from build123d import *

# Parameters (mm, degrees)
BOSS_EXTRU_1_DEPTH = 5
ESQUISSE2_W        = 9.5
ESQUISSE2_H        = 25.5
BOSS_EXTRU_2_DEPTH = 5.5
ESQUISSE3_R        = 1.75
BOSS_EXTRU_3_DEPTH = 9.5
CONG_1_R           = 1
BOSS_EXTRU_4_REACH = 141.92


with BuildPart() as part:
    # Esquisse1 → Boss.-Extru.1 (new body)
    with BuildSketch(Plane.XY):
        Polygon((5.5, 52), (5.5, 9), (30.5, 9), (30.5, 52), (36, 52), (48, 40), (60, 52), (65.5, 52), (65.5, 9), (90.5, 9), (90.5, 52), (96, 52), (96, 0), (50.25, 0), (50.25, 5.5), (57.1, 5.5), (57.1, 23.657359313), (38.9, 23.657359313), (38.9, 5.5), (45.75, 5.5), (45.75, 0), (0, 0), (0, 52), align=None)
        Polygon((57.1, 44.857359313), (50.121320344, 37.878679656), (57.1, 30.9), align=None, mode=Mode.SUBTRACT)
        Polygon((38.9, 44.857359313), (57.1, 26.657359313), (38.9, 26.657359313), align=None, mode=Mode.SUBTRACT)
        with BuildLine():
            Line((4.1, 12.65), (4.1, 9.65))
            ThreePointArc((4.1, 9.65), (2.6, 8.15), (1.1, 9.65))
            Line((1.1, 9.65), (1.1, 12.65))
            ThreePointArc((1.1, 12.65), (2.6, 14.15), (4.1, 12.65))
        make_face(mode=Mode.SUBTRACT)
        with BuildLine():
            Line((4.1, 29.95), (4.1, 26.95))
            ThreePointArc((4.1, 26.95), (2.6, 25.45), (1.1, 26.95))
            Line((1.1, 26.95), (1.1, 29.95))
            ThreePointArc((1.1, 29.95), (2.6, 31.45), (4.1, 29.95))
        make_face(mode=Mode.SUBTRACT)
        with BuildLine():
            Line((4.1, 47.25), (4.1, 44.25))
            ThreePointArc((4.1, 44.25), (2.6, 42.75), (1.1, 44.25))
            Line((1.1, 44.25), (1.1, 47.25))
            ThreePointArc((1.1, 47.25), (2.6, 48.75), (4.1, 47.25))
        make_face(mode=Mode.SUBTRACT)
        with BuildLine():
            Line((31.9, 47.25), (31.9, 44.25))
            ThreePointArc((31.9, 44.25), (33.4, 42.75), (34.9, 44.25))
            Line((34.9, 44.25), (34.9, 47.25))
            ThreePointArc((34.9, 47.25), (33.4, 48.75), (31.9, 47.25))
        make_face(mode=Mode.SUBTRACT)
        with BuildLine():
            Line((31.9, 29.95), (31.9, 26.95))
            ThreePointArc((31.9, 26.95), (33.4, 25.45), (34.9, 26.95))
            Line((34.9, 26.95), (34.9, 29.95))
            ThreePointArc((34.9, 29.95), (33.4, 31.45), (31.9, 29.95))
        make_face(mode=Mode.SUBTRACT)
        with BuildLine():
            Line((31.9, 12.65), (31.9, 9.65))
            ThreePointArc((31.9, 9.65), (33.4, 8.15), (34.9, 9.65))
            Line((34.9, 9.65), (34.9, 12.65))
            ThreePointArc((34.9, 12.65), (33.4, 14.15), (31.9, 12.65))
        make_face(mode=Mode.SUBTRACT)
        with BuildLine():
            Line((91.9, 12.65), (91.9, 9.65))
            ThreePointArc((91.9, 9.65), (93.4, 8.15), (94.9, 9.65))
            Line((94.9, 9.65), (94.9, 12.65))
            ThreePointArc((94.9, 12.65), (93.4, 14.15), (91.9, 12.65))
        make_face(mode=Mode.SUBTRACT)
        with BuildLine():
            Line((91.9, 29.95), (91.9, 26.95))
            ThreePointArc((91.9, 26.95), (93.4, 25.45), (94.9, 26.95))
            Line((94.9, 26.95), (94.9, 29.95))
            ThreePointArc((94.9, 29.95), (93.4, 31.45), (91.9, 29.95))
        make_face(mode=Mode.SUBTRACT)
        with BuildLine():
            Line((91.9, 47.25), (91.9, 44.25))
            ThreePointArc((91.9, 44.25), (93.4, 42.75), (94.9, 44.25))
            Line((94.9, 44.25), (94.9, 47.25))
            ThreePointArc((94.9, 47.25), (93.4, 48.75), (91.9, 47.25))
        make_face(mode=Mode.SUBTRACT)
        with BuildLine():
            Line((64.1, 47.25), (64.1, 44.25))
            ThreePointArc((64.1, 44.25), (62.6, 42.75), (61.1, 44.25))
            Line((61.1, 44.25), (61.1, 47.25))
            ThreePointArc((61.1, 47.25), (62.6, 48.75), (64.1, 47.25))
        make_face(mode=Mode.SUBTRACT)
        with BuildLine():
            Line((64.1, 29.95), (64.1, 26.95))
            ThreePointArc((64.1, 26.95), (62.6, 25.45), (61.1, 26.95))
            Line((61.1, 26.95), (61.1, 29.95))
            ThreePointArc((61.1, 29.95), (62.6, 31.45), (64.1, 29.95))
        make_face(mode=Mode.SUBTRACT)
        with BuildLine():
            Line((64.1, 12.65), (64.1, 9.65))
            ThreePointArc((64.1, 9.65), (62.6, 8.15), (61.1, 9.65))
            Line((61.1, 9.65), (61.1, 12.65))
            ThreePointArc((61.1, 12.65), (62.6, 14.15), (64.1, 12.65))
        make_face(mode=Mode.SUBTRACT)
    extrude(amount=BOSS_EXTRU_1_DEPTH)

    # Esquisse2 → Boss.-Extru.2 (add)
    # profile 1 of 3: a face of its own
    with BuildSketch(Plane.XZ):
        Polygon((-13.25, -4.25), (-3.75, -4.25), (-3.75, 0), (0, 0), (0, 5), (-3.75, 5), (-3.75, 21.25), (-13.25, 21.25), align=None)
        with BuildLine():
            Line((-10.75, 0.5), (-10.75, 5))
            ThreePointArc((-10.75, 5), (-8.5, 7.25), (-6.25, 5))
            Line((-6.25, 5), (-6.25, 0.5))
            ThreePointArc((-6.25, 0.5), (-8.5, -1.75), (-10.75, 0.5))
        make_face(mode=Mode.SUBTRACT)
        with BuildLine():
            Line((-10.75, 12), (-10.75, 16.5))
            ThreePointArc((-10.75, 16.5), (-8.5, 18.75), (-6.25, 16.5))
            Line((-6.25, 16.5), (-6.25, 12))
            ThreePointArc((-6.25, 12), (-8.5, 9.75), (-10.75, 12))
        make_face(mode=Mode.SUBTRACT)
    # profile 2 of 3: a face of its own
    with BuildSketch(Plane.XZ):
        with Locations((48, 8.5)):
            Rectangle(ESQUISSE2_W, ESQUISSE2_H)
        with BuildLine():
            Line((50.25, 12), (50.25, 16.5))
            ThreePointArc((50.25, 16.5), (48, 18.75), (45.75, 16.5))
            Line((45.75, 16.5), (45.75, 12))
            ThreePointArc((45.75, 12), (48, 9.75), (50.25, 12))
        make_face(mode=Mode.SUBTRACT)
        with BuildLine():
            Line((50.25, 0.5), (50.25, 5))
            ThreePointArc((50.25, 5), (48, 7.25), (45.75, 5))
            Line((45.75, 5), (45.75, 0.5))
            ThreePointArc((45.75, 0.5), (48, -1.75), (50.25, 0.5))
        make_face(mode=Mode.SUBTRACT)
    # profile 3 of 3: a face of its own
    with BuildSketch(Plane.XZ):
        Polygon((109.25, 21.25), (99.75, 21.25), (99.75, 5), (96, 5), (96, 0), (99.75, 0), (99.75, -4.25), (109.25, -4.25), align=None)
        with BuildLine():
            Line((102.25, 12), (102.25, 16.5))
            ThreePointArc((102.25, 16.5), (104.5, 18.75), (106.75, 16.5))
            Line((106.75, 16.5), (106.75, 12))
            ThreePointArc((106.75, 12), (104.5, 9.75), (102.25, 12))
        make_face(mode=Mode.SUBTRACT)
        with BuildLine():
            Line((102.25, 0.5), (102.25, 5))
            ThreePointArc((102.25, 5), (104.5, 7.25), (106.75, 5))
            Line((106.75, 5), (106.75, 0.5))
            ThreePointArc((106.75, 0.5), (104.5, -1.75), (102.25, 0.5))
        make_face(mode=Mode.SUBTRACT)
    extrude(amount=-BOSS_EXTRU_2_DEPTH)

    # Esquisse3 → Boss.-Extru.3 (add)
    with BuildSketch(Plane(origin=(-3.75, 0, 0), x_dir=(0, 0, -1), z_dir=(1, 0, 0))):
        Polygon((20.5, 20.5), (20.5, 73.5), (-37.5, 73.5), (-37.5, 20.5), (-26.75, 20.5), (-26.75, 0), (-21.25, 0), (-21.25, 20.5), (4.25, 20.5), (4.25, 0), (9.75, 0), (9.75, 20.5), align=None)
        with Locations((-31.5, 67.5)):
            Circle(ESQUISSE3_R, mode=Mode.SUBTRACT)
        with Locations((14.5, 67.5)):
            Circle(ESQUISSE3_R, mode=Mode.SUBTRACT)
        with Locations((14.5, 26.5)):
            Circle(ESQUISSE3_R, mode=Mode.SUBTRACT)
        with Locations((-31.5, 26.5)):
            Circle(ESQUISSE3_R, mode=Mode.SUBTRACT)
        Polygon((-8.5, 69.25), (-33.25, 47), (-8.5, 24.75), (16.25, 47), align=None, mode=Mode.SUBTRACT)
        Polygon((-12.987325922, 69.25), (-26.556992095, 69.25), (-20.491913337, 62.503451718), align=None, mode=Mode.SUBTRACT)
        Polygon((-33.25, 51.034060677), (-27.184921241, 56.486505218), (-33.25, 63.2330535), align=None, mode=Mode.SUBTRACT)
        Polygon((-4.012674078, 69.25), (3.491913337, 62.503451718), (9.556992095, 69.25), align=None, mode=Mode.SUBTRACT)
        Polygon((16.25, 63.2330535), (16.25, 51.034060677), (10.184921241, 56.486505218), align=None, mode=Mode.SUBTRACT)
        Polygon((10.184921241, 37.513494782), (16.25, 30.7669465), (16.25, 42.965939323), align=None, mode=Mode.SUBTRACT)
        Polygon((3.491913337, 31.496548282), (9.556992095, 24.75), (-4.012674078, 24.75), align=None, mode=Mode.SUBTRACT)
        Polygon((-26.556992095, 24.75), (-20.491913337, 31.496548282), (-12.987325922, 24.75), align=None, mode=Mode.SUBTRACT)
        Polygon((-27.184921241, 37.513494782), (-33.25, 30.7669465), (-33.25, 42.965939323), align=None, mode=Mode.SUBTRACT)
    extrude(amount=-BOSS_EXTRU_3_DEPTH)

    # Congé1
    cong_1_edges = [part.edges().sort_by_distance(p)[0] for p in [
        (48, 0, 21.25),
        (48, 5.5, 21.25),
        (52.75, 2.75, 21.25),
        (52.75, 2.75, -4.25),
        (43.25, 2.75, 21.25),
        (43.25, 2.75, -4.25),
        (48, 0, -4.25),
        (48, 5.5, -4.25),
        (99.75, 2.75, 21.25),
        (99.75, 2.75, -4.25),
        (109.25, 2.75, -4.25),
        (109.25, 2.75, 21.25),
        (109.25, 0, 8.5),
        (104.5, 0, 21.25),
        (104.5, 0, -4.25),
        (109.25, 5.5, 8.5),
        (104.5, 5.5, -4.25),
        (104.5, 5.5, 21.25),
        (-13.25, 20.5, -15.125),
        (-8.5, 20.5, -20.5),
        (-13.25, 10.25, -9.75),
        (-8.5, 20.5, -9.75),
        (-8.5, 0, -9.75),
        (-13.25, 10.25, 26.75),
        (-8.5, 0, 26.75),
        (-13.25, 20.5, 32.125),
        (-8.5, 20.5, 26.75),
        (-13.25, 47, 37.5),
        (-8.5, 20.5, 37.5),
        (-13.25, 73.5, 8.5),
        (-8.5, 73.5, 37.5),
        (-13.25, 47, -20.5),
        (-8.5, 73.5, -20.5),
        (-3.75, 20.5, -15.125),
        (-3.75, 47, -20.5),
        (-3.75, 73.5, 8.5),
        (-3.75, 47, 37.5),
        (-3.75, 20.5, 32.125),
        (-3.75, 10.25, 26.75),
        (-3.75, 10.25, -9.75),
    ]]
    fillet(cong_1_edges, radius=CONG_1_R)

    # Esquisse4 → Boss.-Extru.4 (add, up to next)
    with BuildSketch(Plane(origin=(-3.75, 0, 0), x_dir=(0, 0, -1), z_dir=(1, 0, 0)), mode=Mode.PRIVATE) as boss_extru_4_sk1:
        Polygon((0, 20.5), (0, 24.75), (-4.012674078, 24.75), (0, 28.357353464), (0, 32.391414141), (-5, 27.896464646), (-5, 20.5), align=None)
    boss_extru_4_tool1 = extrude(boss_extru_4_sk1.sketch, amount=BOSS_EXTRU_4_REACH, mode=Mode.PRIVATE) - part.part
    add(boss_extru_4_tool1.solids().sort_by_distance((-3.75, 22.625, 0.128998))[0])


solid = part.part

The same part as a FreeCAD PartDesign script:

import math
import FreeCAD as App
import Part
import Sketcher
from FreeCAD import Vector


def edges_at(feature, points):
    """Names of the edges that pass closest to the given points."""
    edges = feature.Shape.Edges
    near = lambda p: min(range(len(edges)), key=lambda i: edges[i].distToShape(Part.Vertex(*p))[0])
    return sorted({f"Edge{near(p) + 1}" for p in points})


def add_polygon(sketch, points):
    """Adds a closed chain of lines whose ends are joined by coincident constraints."""
    first, n = sketch.GeometryCount, len(points)
    for a, b in zip(points, points[1:] + points[:1]):
        sketch.addGeometry(Part.LineSegment(App.Vector(*a, 0), App.Vector(*b, 0)), False)
    for i in range(n):
        sketch.addConstraint(Sketcher.Constraint("Coincident", first + i, 2, first + (i + 1) % n, 1))

doc = App.newDocument("Part")
params = doc.addObject("Spreadsheet::Sheet", "Params")
for row, (alias, value) in enumerate([
    ("sketch1_radius", "1.5 mm"),
    ("sketch1_width", "25 mm"),
    ("sketch1_height", "43 mm"),
    ("sketch1_height2", "52 mm"),
    ("sketch1_height3", "3 mm"),
    ("pad1_length", "5 mm"),
    ("sketch2_height", "5 mm"),
    ("sketch2_radius", "2.25 mm"),
    ("sketch2_width", "9.5 mm"),
    ("sketch2_height2", "25.5 mm"),
    ("sketch2_height3", "4.5 mm"),
    ("pad2_length", "5.5 mm"),
    ("sketch3_diameter", "3.5 mm"),
    ("sketch3_width", "53 mm"),
    ("sketch3_height", "58 mm"),
    ("sketch3_width2", "20.5 mm"),
    ("sketch3_height2", "5.5 mm"),
    ("pad3_length", "9.5 mm"),
    ("fillet_radius", "1 mm"),
    ("sketch4_height", "5 mm"),
    ("sketch4_width", "4.25 mm"),
], start=1):
    params.set(f"A{row}", alias)
    params.set(f"B{row}", "=" + value)
    params.setAlias(f"B{row}", alias)

body = doc.addObject("PartDesign::Body", "Body")

sketch1 = body.newObject("Sketcher::SketchObject", "Sketch")
sketch1.AttachmentSupport = (doc.getObject("XY_Plane"), [""])
sketch1.MapMode = "FlatFace"
add_polygon(sketch1, [(5.5, 9), (5.5, 52), (0, 52), (0, 0), (45.75, 0), (45.75, 5.5), (38.9, 5.5), (38.9, 23.657359), (57.1, 23.657359), (57.1, 5.5), (50.25, 5.5), (50.25, 0), (96, 0), (96, 52), (90.5, 52), (90.5, 9), (65.5, 9), (65.5, 52), (60, 52), (48, 40), (36, 52), (30.5, 52), (30.5, 9)])
sketch1.addGeometry(Part.ArcOfCircle(Part.Circle(Vector(93.4, 12.65, 0), Vector(0, 0, 1), 1.5), math.radians(0), math.radians(180)), False)
sketch1.addGeometry(Part.LineSegment(Vector(94.9, 12.65, 0), Vector(94.9, 9.65, 0)), False)
sketch1.addGeometry(Part.ArcOfCircle(Part.Circle(Vector(93.4, 9.65, 0), Vector(0, 0, 1), 1.5), math.radians(180), math.radians(360)), False)
sketch1.addGeometry(Part.LineSegment(Vector(91.9, 9.65, 0), Vector(91.9, 12.65, 0)), False)
sketch1.addGeometry(Part.LineSegment(Vector(64.1, 12.65, 0), Vector(64.1, 9.65, 0)), False)
sketch1.addGeometry(Part.ArcOfCircle(Part.Circle(Vector(62.6, 9.65, 0), Vector(0, 0, 1), 1.5), math.radians(180), math.radians(360)), False)
sketch1.addGeometry(Part.LineSegment(Vector(61.1, 9.65, 0), Vector(61.1, 12.65, 0)), False)
sketch1.addGeometry(Part.ArcOfCircle(Part.Circle(Vector(62.6, 12.65, 0), Vector(0, 0, 1), 1.5), math.radians(0), math.radians(180)), False)
sketch1.addGeometry(Part.ArcOfCircle(Part.Circle(Vector(33.4, 12.65, 0), Vector(0, 0, 1), 1.5), math.radians(0), math.radians(180)), False)
sketch1.addGeometry(Part.LineSegment(Vector(34.9, 12.65, 0), Vector(34.9, 9.65, 0)), False)
sketch1.addGeometry(Part.ArcOfCircle(Part.Circle(Vector(33.4, 9.65, 0), Vector(0, 0, 1), 1.5), math.radians(180), math.radians(360)), False)
sketch1.addGeometry(Part.LineSegment(Vector(31.9, 9.65, 0), Vector(31.9, 12.65, 0)), False)
sketch1.addGeometry(Part.LineSegment(Vector(4.1, 12.65, 0), Vector(4.1, 9.65, 0)), False)
sketch1.addGeometry(Part.ArcOfCircle(Part.Circle(Vector(2.6, 9.65, 0), Vector(0, 0, 1), 1.5), math.radians(180), math.radians(360)), False)
sketch1.addGeometry(Part.LineSegment(Vector(1.1, 9.65, 0), Vector(1.1, 12.65, 0)), False)
sketch1.addGeometry(Part.ArcOfCircle(Part.Circle(Vector(2.6, 12.65, 0), Vector(0, 0, 1), 1.5), math.radians(0), math.radians(180)), False)
sketch1.addGeometry(Part.ArcOfCircle(Part.Circle(Vector(93.4, 29.95, 0), Vector(0, 0, 1), 1.5), math.radians(0), math.radians(180)), False)
sketch1.addGeometry(Part.LineSegment(Vector(94.9, 29.95, 0), Vector(94.9, 26.95, 0)), False)
sketch1.addGeometry(Part.ArcOfCircle(Part.Circle(Vector(93.4, 26.95, 0), Vector(0, 0, 1), 1.5), math.radians(180), math.radians(360)), False)
sketch1.addGeometry(Part.LineSegment(Vector(91.9, 26.95, 0), Vector(91.9, 29.95, 0)), False)
sketch1.addGeometry(Part.LineSegment(Vector(64.1, 29.95, 0), Vector(64.1, 26.95, 0)), False)
sketch1.addGeometry(Part.ArcOfCircle(Part.Circle(Vector(62.6, 26.95, 0), Vector(0, 0, 1), 1.5), math.radians(180), math.radians(360)), False)
sketch1.addGeometry(Part.LineSegment(Vector(61.1, 26.95, 0), Vector(61.1, 29.95, 0)), False)
sketch1.addGeometry(Part.ArcOfCircle(Part.Circle(Vector(62.6, 29.95, 0), Vector(0, 0, 1), 1.5), math.radians(0), math.radians(180)), False)
add_polygon(sketch1, [(38.9, 44.857359), (57.1, 26.657359), (38.9, 26.657359)])
add_polygon(sketch1, [(57.1, 44.857359), (57.1, 30.9), (50.12132, 37.87868)])
sketch1.addGeometry(Part.ArcOfCircle(Part.Circle(Vector(93.4, 47.25, 0), Vector(0, 0, 1), 1.5), math.radians(0), math.radians(180)), False)
sketch1.addGeometry(Part.LineSegment(Vector(94.9, 47.25, 0), Vector(94.9, 44.25, 0)), False)
sketch1.addGeometry(Part.ArcOfCircle(Part.Circle(Vector(93.4, 44.25, 0), Vector(0, 0, 1), 1.5), math.radians(180), math.radians(360)), False)
sketch1.addGeometry(Part.LineSegment(Vector(91.9, 44.25, 0), Vector(91.9, 47.25, 0)), False)
sketch1.addGeometry(Part.LineSegment(Vector(64.1, 47.25, 0), Vector(64.1, 44.25, 0)), False)
sketch1.addGeometry(Part.ArcOfCircle(Part.Circle(Vector(62.6, 44.25, 0), Vector(0, 0, 1), 1.5), math.radians(180), math.radians(360)), False)
sketch1.addGeometry(Part.LineSegment(Vector(61.1, 44.25, 0), Vector(61.1, 47.25, 0)), False)
sketch1.addGeometry(Part.ArcOfCircle(Part.Circle(Vector(62.6, 47.25, 0), Vector(0, 0, 1), 1.5), math.radians(0), math.radians(180)), False)
sketch1.addGeometry(Part.ArcOfCircle(Part.Circle(Vector(33.4, 29.95, 0), Vector(0, 0, 1), 1.5), math.radians(0), math.radians(180)), False)
sketch1.addGeometry(Part.LineSegment(Vector(34.9, 29.95, 0), Vector(34.9, 26.95, 0)), False)
sketch1.addGeometry(Part.ArcOfCircle(Part.Circle(Vector(33.4, 26.95, 0), Vector(0, 0, 1), 1.5), math.radians(180), math.radians(360)), False)
sketch1.addGeometry(Part.LineSegment(Vector(31.9, 26.95, 0), Vector(31.9, 29.95, 0)), False)
sketch1.addGeometry(Part.LineSegment(Vector(4.1, 29.95, 0), Vector(4.1, 26.95, 0)), False)
sketch1.addGeometry(Part.ArcOfCircle(Part.Circle(Vector(2.6, 26.95, 0), Vector(0, 0, 1), 1.5), math.radians(180), math.radians(360)), False)
sketch1.addGeometry(Part.LineSegment(Vector(1.1, 26.95, 0), Vector(1.1, 29.95, 0)), False)
sketch1.addGeometry(Part.ArcOfCircle(Part.Circle(Vector(2.6, 29.95, 0), Vector(0, 0, 1), 1.5), math.radians(0), math.radians(180)), False)
sketch1.addGeometry(Part.ArcOfCircle(Part.Circle(Vector(33.4, 47.25, 0), Vector(0, 0, 1), 1.5), math.radians(0), math.radians(180)), False)
sketch1.addGeometry(Part.LineSegment(Vector(34.9, 47.25, 0), Vector(34.9, 44.25, 0)), False)
sketch1.addGeometry(Part.ArcOfCircle(Part.Circle(Vector(33.4, 44.25, 0), Vector(0, 0, 1), 1.5), math.radians(180), math.radians(360)), False)
sketch1.addGeometry(Part.LineSegment(Vector(31.9, 44.25, 0), Vector(31.9, 47.25, 0)), False)
sketch1.addGeometry(Part.LineSegment(Vector(4.1, 47.25, 0), Vector(4.1, 44.25, 0)), False)
sketch1.addGeometry(Part.ArcOfCircle(Part.Circle(Vector(2.6, 44.25, 0), Vector(0, 0, 1), 1.5), math.radians(180), math.radians(360)), False)
sketch1.addGeometry(Part.LineSegment(Vector(1.1, 44.25, 0), Vector(1.1, 47.25, 0)), False)
sketch1.addGeometry(Part.ArcOfCircle(Part.Circle(Vector(2.6, 47.25, 0), Vector(0, 0, 1), 1.5), math.radians(0), math.radians(180)), False)
sketch1.addConstraint([
    Sketcher.Constraint("Tangent", 23, 1, 24, 1),
    Sketcher.Constraint("Tangent", 24, 2, 25, 2),
    Sketcher.Constraint("Tangent", 25, 1, 26, 1),
    Sketcher.Constraint("Tangent", 26, 2, 23, 2),
    Sketcher.Constraint("Tangent", 27, 2, 28, 2),
    Sketcher.Constraint("Tangent", 28, 1, 29, 1),
    Sketcher.Constraint("Tangent", 29, 2, 30, 2),
    Sketcher.Constraint("Tangent", 30, 1, 27, 1),
    Sketcher.Constraint("Tangent", 31, 1, 32, 1),
    Sketcher.Constraint("Tangent", 32, 2, 33, 2),
    Sketcher.Constraint("Tangent", 33, 1, 34, 1),
    Sketcher.Constraint("Tangent", 34, 2, 31, 2),
    Sketcher.Constraint("Tangent", 35, 2, 36, 2),
    Sketcher.Constraint("Tangent", 36, 1, 37, 1),
    Sketcher.Constraint("Tangent", 37, 2, 38, 2),
    Sketcher.Constraint("Tangent", 38, 1, 35, 1),
    Sketcher.Constraint("Tangent", 39, 1, 40, 1),
    Sketcher.Constraint("Tangent", 40, 2, 41, 2),
    Sketcher.Constraint("Tangent", 41, 1, 42, 1),
    Sketcher.Constraint("Tangent", 42, 2, 39, 2),
    Sketcher.Constraint("Tangent", 43, 2, 44, 2),
    Sketcher.Constraint("Tangent", 44, 1, 45, 1),
    Sketcher.Constraint("Tangent", 45, 2, 46, 2),
    Sketcher.Constraint("Tangent", 46, 1, 43, 1),
    Sketcher.Constraint("Tangent", 53, 1, 54, 1),
    Sketcher.Constraint("Tangent", 54, 2, 55, 2),
    Sketcher.Constraint("Tangent", 55, 1, 56, 1),
    Sketcher.Constraint("Tangent", 56, 2, 53, 2),
    Sketcher.Constraint("Tangent", 57, 2, 58, 2),
    Sketcher.Constraint("Tangent", 58, 1, 59, 1),
    Sketcher.Constraint("Tangent", 59, 2, 60, 2),
    Sketcher.Constraint("Tangent", 60, 1, 57, 1),
    Sketcher.Constraint("Tangent", 61, 1, 62, 1),
    Sketcher.Constraint("Tangent", 62, 2, 63, 2),
    Sketcher.Constraint("Tangent", 63, 1, 64, 1),
    Sketcher.Constraint("Tangent", 64, 2, 61, 2),
    Sketcher.Constraint("Tangent", 65, 2, 66, 2),
    Sketcher.Constraint("Tangent", 66, 1, 67, 1),
    Sketcher.Constraint("Tangent", 67, 2, 68, 2),
    Sketcher.Constraint("Tangent", 68, 1, 65, 1),
    Sketcher.Constraint("Tangent", 69, 1, 70, 1),
    Sketcher.Constraint("Tangent", 70, 2, 71, 2),
    Sketcher.Constraint("Tangent", 71, 1, 72, 1),
    Sketcher.Constraint("Tangent", 72, 2, 69, 2),
    Sketcher.Constraint("Tangent", 73, 2, 74, 2),
    Sketcher.Constraint("Tangent", 74, 1, 75, 1),
    Sketcher.Constraint("Tangent", 75, 2, 76, 2),
    Sketcher.Constraint("Tangent", 76, 1, 73, 1),
    Sketcher.Constraint("Vertical", 0),
    Sketcher.Constraint("Horizontal", 1),
    Sketcher.Constraint("Vertical", 2),
    Sketcher.Constraint("Horizontal", 3),
    Sketcher.Constraint("Vertical", 4),
    Sketcher.Constraint("Horizontal", 5),
    Sketcher.Constraint("Vertical", 6),
    Sketcher.Constraint("Horizontal", 7),
    Sketcher.Constraint("Vertical", 8),
    Sketcher.Constraint("Horizontal", 9),
    Sketcher.Constraint("Vertical", 10),
    Sketcher.Constraint("Horizontal", 11),
    Sketcher.Constraint("Vertical", 12),
    Sketcher.Constraint("Horizontal", 13),
    Sketcher.Constraint("Vertical", 14),
    Sketcher.Constraint("Horizontal", 15),
    Sketcher.Constraint("Vertical", 16),
    Sketcher.Constraint("Horizontal", 17),
    Sketcher.Constraint("Horizontal", 20),
    Sketcher.Constraint("Vertical", 21),
    Sketcher.Constraint("Horizontal", 22),
    Sketcher.Constraint("Vertical", 24),
    Sketcher.Constraint("Vertical", 26),
    Sketcher.Constraint("Vertical", 27),
    Sketcher.Constraint("Vertical", 29),
    Sketcher.Constraint("Vertical", 32),
    Sketcher.Constraint("Vertical", 34),
    Sketcher.Constraint("Vertical", 35),
    Sketcher.Constraint("Vertical", 37),
    Sketcher.Constraint("Vertical", 40),
    Sketcher.Constraint("Vertical", 42),
    Sketcher.Constraint("Vertical", 43),
    Sketcher.Constraint("Vertical", 45),
    Sketcher.Constraint("Horizontal", 48),
    Sketcher.Constraint("Vertical", 49),
    Sketcher.Constraint("Vertical", 50),
    Sketcher.Constraint("Vertical", 54),
    Sketcher.Constraint("Vertical", 56),
    Sketcher.Constraint("Vertical", 57),
    Sketcher.Constraint("Vertical", 59),
    Sketcher.Constraint("Vertical", 62),
    Sketcher.Constraint("Vertical", 64),
    Sketcher.Constraint("Vertical", 65),
    Sketcher.Constraint("Vertical", 67),
    Sketcher.Constraint("Vertical", 70),
    Sketcher.Constraint("Vertical", 72),
    Sketcher.Constraint("Vertical", 73),
    Sketcher.Constraint("Vertical", 75),
    Sketcher.Constraint("Coincident", 2, 2, -1, 1),
    Sketcher.Constraint("Equal", 25, 28),
    Sketcher.Constraint("Equal", 30, 31),
    Sketcher.Constraint("Equal", 33, 36),
    Sketcher.Constraint("Equal", 38, 39),
    Sketcher.Constraint("Equal", 41, 44),
    Sketcher.Constraint("Equal", 46, 53),
    Sketcher.Constraint("Equal", 55, 58),
    Sketcher.Constraint("Equal", 60, 61),
    Sketcher.Constraint("Equal", 63, 66),
    Sketcher.Constraint("Equal", 68, 69),
    Sketcher.Constraint("Equal", 71, 74),
    Sketcher.Constraint("PointOnObject", 10, 2, -1),
    Sketcher.Constraint("Perpendicular", 18, 19),
    Sketcher.Constraint("Parallel", 19, 47),
    Sketcher.Constraint("Parallel", 47, 51),
    Sketcher.Constraint("Perpendicular", 51, 52),
    Sketcher.Constraint("Horizontal", 25, 3, 28, 3),
    Sketcher.Constraint("Horizontal", 23, 3, 30, 3),
    Sketcher.Constraint("Horizontal", 30, 3, 31, 3),
    Sketcher.Constraint("Horizontal", 28, 3, 33, 3),
    Sketcher.Constraint("Horizontal", 33, 3, 36, 3),
    Sketcher.Constraint("Horizontal", 31, 3, 38, 3),
    Sketcher.Constraint("Horizontal", 41, 3, 44, 3),
    Sketcher.Constraint("Horizontal", 39, 3, 46, 3),
    Sketcher.Constraint("Horizontal", 55, 3, 58, 3),
    Sketcher.Constraint("Horizontal", 53, 3, 60, 3),
    Sketcher.Constraint("Horizontal", 46, 3, 61, 3),
    Sketcher.Constraint("Horizontal", 44, 3, 63, 3),
    Sketcher.Constraint("Horizontal", 63, 3, 66, 3),
    Sketcher.Constraint("Horizontal", 61, 3, 68, 3),
    Sketcher.Constraint("Horizontal", 60, 3, 69, 3),
    Sketcher.Constraint("Horizontal", 58, 3, 71, 3),
    Sketcher.Constraint("Horizontal", 71, 3, 74, 3),
    Sketcher.Constraint("Horizontal", 69, 3, 76, 3),
    Sketcher.Constraint("Horizontal", 5, 2, 8, 2),
    Sketcher.Constraint("Horizontal", 1, 2, 12, 2),
    Sketcher.Constraint("Horizontal", 13, 2, 16, 2),
    Sketcher.Constraint("Horizontal", 17, 2, 19, 2),
    Sketcher.Constraint("Horizontal", 15, 2, 21, 2),
    Sketcher.Constraint("Horizontal", 49, 2, 52, 2),
    Sketcher.Constraint("Vertical", 25, 3, 39, 3),
    Sketcher.Constraint("Vertical", 30, 3, 44, 3),
    Sketcher.Constraint("Vertical", 41, 3, 53, 3),
    Sketcher.Constraint("Vertical", 46, 3, 58, 3),
    Sketcher.Constraint("Vertical", 33, 3, 61, 3),
    Sketcher.Constraint("Vertical", 38, 3, 66, 3),
    Sketcher.Constraint("Vertical", 63, 3, 69, 3),
    Sketcher.Constraint("Vertical", 68, 3, 74, 3),
    Sketcher.Constraint("Vertical", 8, 2, 47, 2),
    Sketcher.Constraint("Vertical", 6, 2, 48, 2),
    Sketcher.Constraint("Vertical", 47, 2, 50, 2),
    Sketcher.Constraint("Equal", 5, 9),
    Sketcher.Constraint("Equal", 3, 11),
    Sketcher.Constraint("Equal", 1, 13),
    Sketcher.Constraint("Equal", 13, 17),
    Sketcher.Constraint("Equal", 17, 20),
    Sketcher.Constraint("Equal", 15, 22),
    Sketcher.Constraint("Equal", 20, 4),
    Sketcher.Constraint("Equal", 37, 40),
    Sketcher.Constraint("Equal", 48, 49),
    Sketcher.Constraint("Equal", 45, 54),
    Sketcher.Constraint("Radius", 23, 1.5),
    Sketcher.Constraint("DistanceX", 15, 2, 15, 1, 25.0),
    Sketcher.Constraint("DistanceY", 0, 1, 0, 2, 43.0),
    Sketcher.Constraint("DistanceY", 2, 2, 2, 1, 52.0),
    Sketcher.Constraint("DistanceY", 24, 2, 24, 1, 3.0),
    Sketcher.Constraint("DistanceX", 1, 2, 1, 1, 5.5),
    Sketcher.Constraint("DistanceX", 7, 1, 7, 2, 18.2),
    Sketcher.Constraint("DistanceX", -1, 1, 11, 2, 96.0),
    Sketcher.Constraint("DistanceX", 3, 1, 3, 2, 45.75),
    Sketcher.Constraint("DistanceX", -1, 1, 23, 3, 93.4),
    Sketcher.Constraint("DistanceX", -1, 1, 28, 3, 62.6),
    Sketcher.Constraint("DistanceX", -1, 1, 31, 3, 33.4),
    Sketcher.Constraint("DistanceX", -1, 1, 36, 3, 2.6),
    Sketcher.Constraint("DistanceY", -1, 1, 50, 2, 30.9),
    Sketcher.Constraint("DistanceY", -1, 1, 23, 3, 12.65),
    Sketcher.Constraint("DistanceY", -1, 1, 39, 3, 29.95),
    Sketcher.Constraint("DistanceY", -1, 1, 53, 3, 47.25),
    Sketcher.Constraint("DistanceY", 6, 1, 6, 2, 18.157359),
    Sketcher.Constraint("DistanceY", 50, 2, 50, 1, 13.957359),
])
sketch1.setExpression("Constraints[187]", "Params.sketch1_radius")
sketch1.setExpression("Constraints[188]", "Params.sketch1_width")
sketch1.setExpression("Constraints[189]", "Params.sketch1_height")
sketch1.setExpression("Constraints[190]", "Params.sketch1_height2")
sketch1.setExpression("Constraints[191]", "Params.sketch1_height3")
pad1 = body.newObject("PartDesign::Pad", "Pad")
pad1.Profile = sketch1
pad1.setExpression("Length", "Params.pad1_length")

sketch2 = body.newObject("Sketcher::SketchObject", "Sketch001")
sketch2.AttachmentSupport = (doc.getObject("XZ_Plane"), [""])
sketch2.MapMode = "FlatFace"
add_polygon(sketch2, [(-13.25, -4.25), (-3.75, -4.25), (-3.75, 0), (0, 0), (0, 5), (-3.75, 5), (-3.75, 21.25), (-13.25, 21.25)])
sketch2.addGeometry(Part.ArcOfCircle(Part.Circle(Vector(-8.5, 0.5, 0), Vector(0, 0, 1), 2.25), math.radians(180), math.radians(360)), False)
sketch2.addGeometry(Part.LineSegment(Vector(-10.75, 0.5, 0), Vector(-10.75, 5, 0)), False)
sketch2.addGeometry(Part.ArcOfCircle(Part.Circle(Vector(-8.5, 5, 0), Vector(0, 0, 1), 2.25), math.radians(0), math.radians(180)), False)
sketch2.addGeometry(Part.LineSegment(Vector(-6.25, 5, 0), Vector(-6.25, 0.5, 0)), False)
sketch2.addGeometry(Part.ArcOfCircle(Part.Circle(Vector(-8.5, 12, 0), Vector(0, 0, 1), 2.25), math.radians(180), math.radians(360)), False)
sketch2.addGeometry(Part.LineSegment(Vector(-10.75, 12, 0), Vector(-10.75, 16.5, 0)), False)
sketch2.addGeometry(Part.ArcOfCircle(Part.Circle(Vector(-8.5, 16.5, 0), Vector(0, 0, 1), 2.25), math.radians(0), math.radians(180)), False)
sketch2.addGeometry(Part.LineSegment(Vector(-6.25, 16.5, 0), Vector(-6.25, 12, 0)), False)
add_polygon(sketch2, [(43.25, 21.25), (43.25, -4.25), (52.75, -4.25), (52.75, 21.25)])
sketch2.addGeometry(Part.LineSegment(Vector(50.25, 5, 0), Vector(50.25, 0.5, 0)), False)
sketch2.addGeometry(Part.ArcOfCircle(Part.Circle(Vector(48, 0.5, 0), Vector(0, 0, 1), 2.25), math.radians(180), math.radians(360)), False)
sketch2.addGeometry(Part.LineSegment(Vector(45.75, 0.5, 0), Vector(45.75, 5, 0)), False)
sketch2.addGeometry(Part.ArcOfCircle(Part.Circle(Vector(48, 5, 0), Vector(0, 0, 1), 2.25), math.radians(0), math.radians(180)), False)
sketch2.addGeometry(Part.LineSegment(Vector(50.25, 16.5, 0), Vector(50.25, 12, 0)), False)
sketch2.addGeometry(Part.ArcOfCircle(Part.Circle(Vector(48, 12, 0), Vector(0, 0, 1), 2.25), math.radians(180), math.radians(360)), False)
sketch2.addGeometry(Part.LineSegment(Vector(45.75, 12, 0), Vector(45.75, 16.5, 0)), False)
sketch2.addGeometry(Part.ArcOfCircle(Part.Circle(Vector(48, 16.5, 0), Vector(0, 0, 1), 2.25), math.radians(0), math.radians(180)), False)
add_polygon(sketch2, [(109.25, 21.25), (99.75, 21.25), (99.75, 5), (96, 5), (96, 0), (99.75, 0), (99.75, -4.25), (109.25, -4.25)])
sketch2.addGeometry(Part.ArcOfCircle(Part.Circle(Vector(104.5, 0.5, 0), Vector(0, 0, 1), 2.25), math.radians(180), math.radians(360)), False)
sketch2.addGeometry(Part.LineSegment(Vector(102.25, 0.5, 0), Vector(102.25, 5, 0)), False)
sketch2.addGeometry(Part.ArcOfCircle(Part.Circle(Vector(104.5, 5, 0), Vector(0, 0, 1), 2.25), math.radians(0), math.radians(180)), False)
sketch2.addGeometry(Part.LineSegment(Vector(106.75, 5, 0), Vector(106.75, 0.5, 0)), False)
sketch2.addGeometry(Part.ArcOfCircle(Part.Circle(Vector(104.5, 12, 0), Vector(0, 0, 1), 2.25), math.radians(180), math.radians(360)), False)
sketch2.addGeometry(Part.LineSegment(Vector(102.25, 12, 0), Vector(102.25, 16.5, 0)), False)
sketch2.addGeometry(Part.ArcOfCircle(Part.Circle(Vector(104.5, 16.5, 0), Vector(0, 0, 1), 2.25), math.radians(0), math.radians(180)), False)
sketch2.addGeometry(Part.LineSegment(Vector(106.75, 16.5, 0), Vector(106.75, 12, 0)), False)
sketch2.addConstraint([
    Sketcher.Constraint("Tangent", 8, 1, 9, 1),
    Sketcher.Constraint("Tangent", 9, 2, 10, 2),
    Sketcher.Constraint("Tangent", 10, 1, 11, 1),
    Sketcher.Constraint("Tangent", 11, 2, 8, 2),
    Sketcher.Constraint("Tangent", 12, 1, 13, 1),
    Sketcher.Constraint("Tangent", 13, 2, 14, 2),
    Sketcher.Constraint("Tangent", 14, 1, 15, 1),
    Sketcher.Constraint("Tangent", 15, 2, 12, 2),
    Sketcher.Constraint("Tangent", 20, 2, 21, 2),
    Sketcher.Constraint("Tangent", 21, 1, 22, 1),
    Sketcher.Constraint("Tangent", 22, 2, 23, 2),
    Sketcher.Constraint("Tangent", 23, 1, 20, 1),
    Sketcher.Constraint("Tangent", 24, 2, 25, 2),
    Sketcher.Constraint("Tangent", 25, 1, 26, 1),
    Sketcher.Constraint("Tangent", 26, 2, 27, 2),
    Sketcher.Constraint("Tangent", 27, 1, 24, 1),
    Sketcher.Constraint("Tangent", 36, 1, 37, 1),
    Sketcher.Constraint("Tangent", 37, 2, 38, 2),
    Sketcher.Constraint("Tangent", 38, 1, 39, 1),
    Sketcher.Constraint("Tangent", 39, 2, 36, 2),
    Sketcher.Constraint("Tangent", 40, 1, 41, 1),
    Sketcher.Constraint("Tangent", 41, 2, 42, 2),
    Sketcher.Constraint("Tangent", 42, 1, 43, 1),
    Sketcher.Constraint("Tangent", 43, 2, 40, 2),
    Sketcher.Constraint("Horizontal", 0),
    Sketcher.Constraint("Vertical", 1),
    Sketcher.Constraint("Horizontal", 2),
    Sketcher.Constraint("Vertical", 3),
    Sketcher.Constraint("Horizontal", 4),
    Sketcher.Constraint("Vertical", 5),
    Sketcher.Constraint("Horizontal", 6),
    Sketcher.Constraint("Vertical", 7),
    Sketcher.Constraint("Vertical", 9),
    Sketcher.Constraint("Vertical", 11),
    Sketcher.Constraint("Vertical", 13),
    Sketcher.Constraint("Vertical", 15),
    Sketcher.Constraint("Vertical", 16),
    Sketcher.Constraint("Horizontal", 17),
    Sketcher.Constraint("Vertical", 18),
    Sketcher.Constraint("Horizontal", 19),
    Sketcher.Constraint("Vertical", 20),
    Sketcher.Constraint("Vertical", 22),
    Sketcher.Constraint("Vertical", 24),
    Sketcher.Constraint("Vertical", 26),
    Sketcher.Constraint("Horizontal", 28),
    Sketcher.Constraint("Vertical", 29),
    Sketcher.Constraint("Horizontal", 30),
    Sketcher.Constraint("Vertical", 31),
    Sketcher.Constraint("Horizontal", 32),
    Sketcher.Constraint("Vertical", 33),
    Sketcher.Constraint("Horizontal", 34),
    Sketcher.Constraint("Vertical", 35),
    Sketcher.Constraint("Vertical", 37),
    Sketcher.Constraint("Vertical", 39),
    Sketcher.Constraint("Vertical", 41),
    Sketcher.Constraint("Vertical", 43),
    Sketcher.Constraint("Coincident", 2, 2, -1, 1),
    Sketcher.Constraint("Equal", 10, 12),
    Sketcher.Constraint("Equal", 14, 21),
    Sketcher.Constraint("Equal", 23, 25),
    Sketcher.Constraint("Equal", 27, 36),
    Sketcher.Constraint("Equal", 38, 40),
    Sketcher.Constraint("PointOnObject", 31, 2, -1),
    Sketcher.Constraint("Horizontal", 8, 3, 21, 3),
    Sketcher.Constraint("Horizontal", 10, 3, 23, 3),
    Sketcher.Constraint("Horizontal", 12, 3, 25, 3),
    Sketcher.Constraint("Horizontal", 14, 3, 27, 3),
    Sketcher.Constraint("Horizontal", 21, 3, 36, 3),
    Sketcher.Constraint("Horizontal", 23, 3, 38, 3),
    Sketcher.Constraint("Horizontal", 25, 3, 40, 3),
    Sketcher.Constraint("Horizontal", 27, 3, 42, 3),
    Sketcher.Constraint("Horizontal", 38, 3, 3, 2),
    Sketcher.Constraint("Horizontal", 7, 2, 16, 2),
    Sketcher.Constraint("Horizontal", 6, 2, 18, 2),
    Sketcher.Constraint("Horizontal", 19, 2, 28, 2),
    Sketcher.Constraint("Horizontal", 23, 1, 29, 2),
    Sketcher.Constraint("Horizontal", 17, 2, 33, 2),
    Sketcher.Constraint("Vertical", 10, 3, 12, 3),
    Sketcher.Constraint("Vertical", 23, 3, 25, 3),
    Sketcher.Constraint("Vertical", 38, 3, 40, 3),
    Sketcher.Constraint("Vertical", 1, 2, 4, 2),
    Sketcher.Constraint("Vertical", 29, 2, 32, 2),
    Sketcher.Constraint("Equal", 6, 17),
    Sketcher.Constraint("Equal", 19, 28),
    Sketcher.Constraint("Equal", 4, 30),
    Sketcher.Constraint("Equal", 11, 13),
    Sketcher.Constraint("DistanceY", 3, 1, 3, 2, 5.0),
    Sketcher.Constraint("Radius", 8, 2.25),
    Sketcher.Constraint("DistanceX", 0, 1, 0, 2, 9.5),
    Sketcher.Constraint("DistanceY", 7, 2, 7, 1, 25.5),
    Sketcher.Constraint("DistanceY", 9, 1, 9, 2, 4.5),
    Sketcher.Constraint("DistanceY", -1, 1, 12, 3, 12.0),
    Sketcher.Constraint("DistanceX", -1, 1, 21, 3, 48.0),
    Sketcher.Constraint("DistanceX", -1, 1, 30, 2, 96.0),
    Sketcher.Constraint("DistanceX", 8, 3, 36, 3, 113.0),
    Sketcher.Constraint("DistanceX", 8, 1, 1, 2, 7.0),
    Sketcher.Constraint("DistanceX", 16, 2, 20, 2, 7.0),
    Sketcher.Constraint("DistanceX", 18, 2, 28, 2, 47.0),
    Sketcher.Constraint("DistanceY", 1, 1, 1, 2, 4.25),
])
sketch2.setExpression("Constraints[106]", "Params.sketch2_height")
sketch2.setExpression("Constraints[107]", "Params.sketch2_radius")
sketch2.setExpression("Constraints[108]", "Params.sketch2_width")
sketch2.setExpression("Constraints[109]", "Params.sketch2_height2")
sketch2.setExpression("Constraints[110]", "Params.sketch2_height3")
pad2 = body.newObject("PartDesign::Pad", "Pad001")
pad2.Profile = sketch2
pad2.setExpression("Length", "Params.pad2_length")
pad2.Reversed = True

sketch3 = body.newObject("Sketcher::SketchObject", "Sketch002")
sketch3.AttachmentSupport = (doc.getObject("YZ_Plane"), [""])
sketch3.MapMode = "FlatFace"
sketch3.AttachmentOffset = App.Placement(Vector(0, 0, -3.75), App.Rotation())
add_polygon(sketch3, [(20.5, -20.5), (73.5, -20.5), (73.5, 37.5), (20.5, 37.5), (20.5, 26.75), (0, 26.75), (0, 21.25), (20.5, 21.25), (20.5, -4.25), (0, -4.25), (0, -9.75), (20.5, -9.75)])
sketch3.addGeometry(Part.Circle(Vector(26.5, 31.5, 0), Vector(0, 0, 1), 1.75), False)
add_polygon(sketch3, [(24.75, 12.987326), (24.75, 26.556992), (31.496548, 20.491913)])
add_polygon(sketch3, [(42.965939, 33.25), (37.513495, 27.184921), (30.766946, 33.25)])
add_polygon(sketch3, [(24.75, 4.012674), (31.496548, -3.491913), (24.75, -9.556992)])
sketch3.addGeometry(Part.Circle(Vector(26.5, -14.5, 0), Vector(0, 0, 1), 1.75), False)
add_polygon(sketch3, [(30.766946, -16.25), (37.513495, -10.184921), (42.965939, -16.25)])
add_polygon(sketch3, [(56.486505, 27.184921), (51.034061, 33.25), (63.233053, 33.25)])
sketch3.addGeometry(Part.Circle(Vector(67.5, 31.5, 0), Vector(0, 0, 1), 1.75), False)
add_polygon(sketch3, [(69.25, 26.556992), (69.25, 12.987326), (62.503452, 20.491913)])
add_polygon(sketch3, [(47, 33.25), (69.25, 8.5), (47, -16.25), (24.75, 8.5)])
add_polygon(sketch3, [(56.486505, -10.184921), (63.233053, -16.25), (51.034061, -16.25)])
add_polygon(sketch3, [(62.503452, -3.491913), (69.25, 4.012674), (69.25, -9.556992)])
sketch3.addGeometry(Part.Circle(Vector(67.5, -14.5, 0), Vector(0, 0, 1), 1.75), False)
sketch3.addConstraint([
    Sketcher.Constraint("Horizontal", 0),
    Sketcher.Constraint("Vertical", 1),
    Sketcher.Constraint("Horizontal", 2),
    Sketcher.Constraint("Vertical", 3),
    Sketcher.Constraint("Horizontal", 4),
    Sketcher.Constraint("Vertical", 5),
    Sketcher.Constraint("Horizontal", 6),
    Sketcher.Constraint("Vertical", 7),
    Sketcher.Constraint("Horizontal", 8),
    Sketcher.Constraint("Vertical", 9),
    Sketcher.Constraint("Horizontal", 10),
    Sketcher.Constraint("Vertical", 11),
    Sketcher.Constraint("Vertical", 13),
    Sketcher.Constraint("Horizontal", 18),
    Sketcher.Constraint("Vertical", 21),
    Sketcher.Constraint("Horizontal", 25),
    Sketcher.Constraint("Horizontal", 27),
    Sketcher.Constraint("Vertical", 30),
    Sketcher.Constraint("Horizontal", 38),
    Sketcher.Constraint("Vertical", 41),
    Sketcher.Constraint("Equal", 12, 22),
    Sketcher.Constraint("Equal", 22, 29),
    Sketcher.Constraint("Equal", 29, 43),
    Sketcher.Constraint("PointOnObject", 4, 2, -2),
    Sketcher.Constraint("PointOnObject", 8, 2, -2),
    Sketcher.Constraint("Perpendicular", 14, 15),
    Sketcher.Constraint("Parallel", 15, 16),
    Sketcher.Constraint("Perpendicular", 16, 17),
    Sketcher.Constraint("Perpendicular", 19, 20),
    Sketcher.Constraint("Parallel", 20, 23),
    Sketcher.Constraint("Perpendicular", 23, 24),
    Sketcher.Constraint("Parallel", 24, 26),
    Sketcher.Constraint("Perpendicular", 26, 28),
    Sketcher.Constraint("Perpendicular", 28, 31),
    Sketcher.Constraint("Perpendicular", 31, 32),
    Sketcher.Constraint("Perpendicular", 32, 33),
    Sketcher.Constraint("Perpendicular", 17, 34),
    Sketcher.Constraint("Parallel", 33, 35),
    Sketcher.Constraint("Parallel", 34, 36),
    Sketcher.Constraint("Perpendicular", 36, 37),
    Sketcher.Constraint("Perpendicular", 37, 39),
    Sketcher.Constraint("Parallel", 39, 40),
    Sketcher.Constraint("Perpendicular", 40, 42),
    Sketcher.Constraint("Horizontal", 12, 3, 29, 3),
    Sketcher.Constraint("Horizontal", 22, 3, 43, 3),
    Sketcher.Constraint("Horizontal", 18, 2, 26, 2),
    Sketcher.Constraint("Horizontal", 16, 2, 28, 2),
    Sketcher.Constraint("Horizontal", 15, 2, 30, 2),
    Sketcher.Constraint("Horizontal", 14, 2, 31, 2),
    Sketcher.Constraint("Horizontal", 13, 2, 32, 2),
    Sketcher.Constraint("Horizontal", 25, 2, 34, 2),
    Sketcher.Constraint("Horizontal", 33, 2, 35, 2),
    Sketcher.Constraint("Horizontal", 27, 2, 36, 2),
    Sketcher.Constraint("Horizontal", 34, 2, 37, 2),
    Sketcher.Constraint("Horizontal", 23, 2, 39, 2),
    Sketcher.Constraint("Horizontal", 21, 2, 40, 2),
    Sketcher.Constraint("Horizontal", 20, 2, 41, 2),
    Sketcher.Constraint("Vertical", 12, 3, 22, 3),
    Sketcher.Constraint("Vertical", 29, 3, 43, 3),
    Sketcher.Constraint("Vertical", 3, 2, 6, 2),
    Sketcher.Constraint("Vertical", 7, 2, 10, 2),
    Sketcher.Constraint("Vertical", 14, 2, 19, 2),
    Sketcher.Constraint("Vertical", 15, 2, 20, 2),
    Sketcher.Constraint("Vertical", 16, 2, 23, 2),
    Sketcher.Constraint("Vertical", 18, 2, 24, 2),
    Sketcher.Constraint("Vertical", 32, 2, 33, 2),
    Sketcher.Constraint("Vertical", 21, 2, 35, 2),
    Sketcher.Constraint("Vertical", 27, 2, 37, 2),
    Sketcher.Constraint("Vertical", 33, 2, 40, 2),
    Sketcher.Constraint("Equal", 5, 9),
    Sketcher.Constraint("Equal", 3, 11),
    Sketcher.Constraint("Equal", 14, 17),
    Sketcher.Constraint("Diameter", 12, 3.5),
    Sketcher.Constraint("DistanceX", 0, 1, 0, 2, 53.0),
    Sketcher.Constraint("DistanceY", 1, 1, 1, 2, 58.0),
    Sketcher.Constraint("DistanceX", 4, 2, 4, 1, 20.5),
    Sketcher.Constraint("DistanceY", 5, 2, 5, 1, 5.5),
    Sketcher.Constraint("DistanceY", 7, 2, 7, 1, 25.5),
    Sketcher.Constraint("DistanceX", -1, 1, 34, 2, 47.0),
    Sketcher.Constraint("DistanceY", 22, 3, 12, 3, 46.0),
    Sketcher.Constraint("DistanceX", 12, 3, 29, 3, 41.0),
    Sketcher.Constraint("DistanceX", 43, 3, 0, 2, 6.0),
    Sketcher.Constraint("DistanceY", 0, 2, 43, 3, 6.0),
    Sketcher.Constraint("DistanceY", 33, 2, 29, 3, 23.0),
    Sketcher.Constraint("DistanceY", -1, 1, 12, 3, 31.5),
    Sketcher.Constraint("DistanceY", 3, 2, 17, 2, 6.5),
    Sketcher.Constraint("DistanceX", -1, 1, 13, 2, 24.75),
    Sketcher.Constraint("DistanceX", 31, 2, 27, 2, 0.729602),
    Sketcher.Constraint("Distance", 15, 10.09132),
    Sketcher.Constraint("DistanceX", -1, 1, 18, 2, 42.965939),
    Sketcher.Constraint("DistanceY", 13, 2, 16, 2, 0.627929),
    Sketcher.Constraint("DistanceY", 19, 2, 15, 2, 16.479239),
])
sketch3.setExpression("Constraints[112]", "Params.sketch3_diameter")
sketch3.setExpression("Constraints[113]", "Params.sketch3_width")
sketch3.setExpression("Constraints[114]", "Params.sketch3_height")
sketch3.setExpression("Constraints[115]", "Params.sketch3_width2")
sketch3.setExpression("Constraints[116]", "Params.sketch3_height2")
pad3 = body.newObject("PartDesign::Pad", "Pad002")
pad3.Profile = sketch3
pad3.setExpression("Length", "Params.pad3_length")
pad3.Reversed = True
doc.recompute()

fillet = body.newObject("PartDesign::Fillet", "Fillet")
fillet.Base = (pad3, edges_at(pad3, [
    (48, 0, 21.25),
    (48, 5.5, 21.25),
    (52.75, 2.75, 21.25),
    (52.75, 2.75, -4.25),
    (43.25, 2.75, 21.25),
    (43.25, 2.75, -4.25),
    (48, 0, -4.25),
    (48, 5.5, -4.25),
    (99.75, 2.75, 21.25),
    (99.75, 2.75, -4.25),
    (109.25, 2.75, -4.25),
    (109.25, 2.75, 21.25),
    (109.25, 0, 8.5),
    (104.5, 0, 21.25),
    (104.5, 0, -4.25),
    (109.25, 5.5, 8.5),
    (104.5, 5.5, -4.25),
    (104.5, 5.5, 21.25),
    (-13.25, 20.5, -15.125),
    (-8.5, 20.5, -20.5),
    (-13.25, 10.25, -9.75),
    (-8.5, 20.5, -9.75),
    (-8.5, 0, -9.75),
    (-13.25, 10.25, 26.75),
    (-8.5, 0, 26.75),
    (-13.25, 20.5, 32.125),
    (-8.5, 20.5, 26.75),
    (-13.25, 47, 37.5),
    (-8.5, 20.5, 37.5),
    (-13.25, 73.5, 8.5),
    (-8.5, 73.5, 37.5),
    (-13.25, 47, -20.5),
    (-8.5, 73.5, -20.5),
    (-3.75, 20.5, -15.125),
    (-3.75, 47, -20.5),
    (-3.75, 73.5, 8.5),
    (-3.75, 47, 37.5),
    (-3.75, 20.5, 32.125),
    (-3.75, 10.25, 26.75),
    (-3.75, 10.25, -9.75),
]))
fillet.setExpression("Radius", "Params.fillet_radius")

sketch4 = body.newObject("Sketcher::SketchObject", "Sketch003")
sketch4.AttachmentSupport = (doc.getObject("YZ_Plane"), [""])
sketch4.MapMode = "FlatFace"
sketch4.AttachmentOffset = App.Placement(Vector(0, 0, -3.75), App.Rotation())
add_polygon(sketch4, [(20.5, 0), (24.75, 0), (24.75, 4.012674), (28.357353, 0), (32.391414, 0), (27.896465, 5), (20.5, 5)])
sketch4.addConstraint([
    Sketcher.Constraint("Horizontal", 0),
    Sketcher.Constraint("Vertical", 1),
    Sketcher.Constraint("Horizontal", 3),
    Sketcher.Constraint("Horizontal", 5),
    Sketcher.Constraint("Vertical", 6),
    Sketcher.Constraint("PointOnObject", 0, 2, -1),
    Sketcher.Constraint("PointOnObject", 2, 2, -1),
    Sketcher.Constraint("Parallel", 2, 4),
    Sketcher.Constraint("DistanceY", 6, 2, 6, 1, 5.0),
    Sketcher.Constraint("DistanceX", 0, 1, 0, 2, 4.25),
    Sketcher.Constraint("DistanceX", -1, 1, 5, 2, 20.5),
    Sketcher.Constraint("DistanceX", 3, 1, 3, 2, 4.034061),
    Sketcher.Constraint("Distance", 2, 5.39579),
    Sketcher.Constraint("DistanceX", 5, 2, 5, 1, 7.396465),
])
sketch4.setExpression("Constraints[15]", "Params.sketch4_height")
sketch4.setExpression("Constraints[16]", "Params.sketch4_width")
pad4 = body.newObject("PartDesign::Pad", "Pad003")
pad4.Profile = sketch4
pad4.Type = "UpToFirst"

doc.recompute()
